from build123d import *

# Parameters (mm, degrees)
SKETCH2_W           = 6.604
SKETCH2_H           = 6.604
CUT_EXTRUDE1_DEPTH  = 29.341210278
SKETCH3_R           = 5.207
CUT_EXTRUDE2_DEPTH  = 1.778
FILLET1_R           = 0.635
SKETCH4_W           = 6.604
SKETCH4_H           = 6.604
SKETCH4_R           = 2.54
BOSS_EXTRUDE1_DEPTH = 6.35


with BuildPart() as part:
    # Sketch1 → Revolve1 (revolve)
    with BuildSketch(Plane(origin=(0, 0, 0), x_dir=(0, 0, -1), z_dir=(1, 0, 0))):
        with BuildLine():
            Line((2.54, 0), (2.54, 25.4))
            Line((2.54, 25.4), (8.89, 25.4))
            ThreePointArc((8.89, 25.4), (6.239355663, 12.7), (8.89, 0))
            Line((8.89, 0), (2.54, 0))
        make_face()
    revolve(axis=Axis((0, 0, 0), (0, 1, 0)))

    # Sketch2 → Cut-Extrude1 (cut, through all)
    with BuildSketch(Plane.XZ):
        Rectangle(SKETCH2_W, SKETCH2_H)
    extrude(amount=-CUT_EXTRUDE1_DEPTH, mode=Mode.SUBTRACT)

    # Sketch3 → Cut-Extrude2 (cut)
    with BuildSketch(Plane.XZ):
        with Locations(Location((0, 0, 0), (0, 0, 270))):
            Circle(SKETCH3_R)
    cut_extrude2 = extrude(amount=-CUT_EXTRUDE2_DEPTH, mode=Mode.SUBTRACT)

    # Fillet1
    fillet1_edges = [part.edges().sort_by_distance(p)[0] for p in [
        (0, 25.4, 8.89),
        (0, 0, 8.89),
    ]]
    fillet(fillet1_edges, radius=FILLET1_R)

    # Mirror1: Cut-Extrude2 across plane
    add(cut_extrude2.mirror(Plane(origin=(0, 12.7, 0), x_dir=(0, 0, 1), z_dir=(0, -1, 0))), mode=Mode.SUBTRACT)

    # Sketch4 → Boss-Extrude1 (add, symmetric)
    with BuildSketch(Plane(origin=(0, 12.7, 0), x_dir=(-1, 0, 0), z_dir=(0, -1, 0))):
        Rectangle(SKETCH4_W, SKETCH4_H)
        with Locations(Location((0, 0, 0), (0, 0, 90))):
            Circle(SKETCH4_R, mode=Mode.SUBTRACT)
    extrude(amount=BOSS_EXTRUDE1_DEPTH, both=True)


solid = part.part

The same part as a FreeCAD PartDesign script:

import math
import FreeCAD as App
import Part
import Sketcher

V = App.Vector
Q = App.Units.Quantity


def edges_at(feature, points):
    """Names of the edges that pass closest to the given points."""
    edges = feature.Shape.Edges
    near = lambda p: min(range(len(edges)), key=lambda i: edges[i].distToShape(Part.Vertex(*p))[0])
    return sorted({f"Edge{near(p) + 1}" for p in points})

doc = App.newDocument("Part")
body = doc.addObject("PartDesign::Body", "Body")

sketch1 = doc.addObject("Sketcher::SketchObject", "Sketch")
body.addObject(sketch1)
sketch1.AttachmentSupport = (doc.YZ_Plane, [""])
sketch1.MapMode = "FlatFace"
sketch1.addGeometry([
    Part.LineSegment(V(25, -3, 0), V(0, -3, 0)),
    Part.LineSegment(V(0, -3, 0), V(0, -9, 0)),
    Part.ArcOfCircle(Part.Circle(V(13, -38, 0), V(0, 0, 1), 32), math.radians(66), math.radians(114)),
    Part.LineSegment(V(25, -9, 0), V(25, -3, 0)),
], False)
sketch1.addConstraint([
    Sketcher.Constraint("Coincident", 0, 2, 1, 1),
    Sketcher.Constraint("Coincident", 1, 2, 2, 2),
    Sketcher.Constraint("Coincident", 2, 1, 3, 1),
    Sketcher.Constraint("Coincident", 3, 2, 0, 1),
    Sketcher.Constraint("Horizontal", 0),
    Sketcher.Constraint("Vertical", 1),
    Sketcher.Constraint("Vertical", 3),
    Sketcher.Constraint("PointOnObject", 0, 2, -2),
    Sketcher.Constraint("Horizontal", 1, 2, 2, 1),
    Sketcher.Constraint("DistanceX", 0, 2, 0, 1, Q("1 in")),
    Sketcher.Constraint("Radius", 2, Q("1.25 in")),
    Sketcher.Constraint("DistanceY", 1, 2, 1, 1, Q("0.25 in")),
    Sketcher.Constraint("DistanceY", 0, 2, -1, 1, Q("0.1 in")),
])
revolution = doc.addObject("PartDesign::Revolution", "Revolution")
body.addObject(revolution)
revolution.Profile = sketch1
revolution.ReferenceAxis = (sketch1, ["H_Axis"])
revolution.Angle = 360

sketch2 = doc.addObject("Sketcher::SketchObject", "Sketch001")
body.addObject(sketch2)
sketch2.AttachmentSupport = (doc.XZ_Plane, [""])
sketch2.MapMode = "FlatFace"
sketch2.addGeometry([
    Part.LineSegment(V(-3, 3, 0), V(-3, -3, 0)),
    Part.LineSegment(V(-3, -3, 0), V(3, -3, 0)),
    Part.LineSegment(V(3, -3, 0), V(3, 3, 0)),
    Part.LineSegment(V(3, 3, 0), V(-3, 3, 0)),
], False)
sketch2.addConstraint([
    Sketcher.Constraint("Coincident", 0, 2, 1, 1),
    Sketcher.Constraint("Coincident", 1, 2, 2, 1),
    Sketcher.Constraint("Coincident", 2, 2, 3, 1),
    Sketcher.Constraint("Coincident", 3, 2, 0, 1),
    Sketcher.Constraint("Vertical", 0),
    Sketcher.Constraint("Horizontal", 1),
    Sketcher.Constraint("Vertical", 2),
    Sketcher.Constraint("Horizontal", 3),
    Sketcher.Constraint("Symmetric", 0, 2, 2, 2, -1, 1),
    Sketcher.Constraint("Equal", 3, 0),
    Sketcher.Constraint("DistanceX", 1, 1, 1, 2, Q("0.26 in")),
])
pocket1 = doc.addObject("PartDesign::Pocket", "Pocket")
body.addObject(pocket1)
pocket1.Profile = sketch2
pocket1.Type = "ThroughAll"

sketch3 = doc.addObject("Sketcher::SketchObject", "Sketch002")
body.addObject(sketch3)
sketch3.AttachmentSupport = (doc.XZ_Plane, [""])
sketch3.MapMode = "FlatFace"
sketch3.addGeometry(Part.Circle(V(0, 0, 0), V(0, 0, 1), 5), False)
sketch3.addConstraint([
    Sketcher.Constraint("Coincident", 0, 3, -1, 1),
    Sketcher.Constraint("Diameter", 0, Q("0.41 in")),
])
pocket2 = doc.addObject("PartDesign::Pocket", "Pocket001")
body.addObject(pocket2)
pocket2.Profile = sketch3
pocket2.Length = Q("0.07 in")
doc.recompute()

fillet = doc.addObject("PartDesign::Fillet", "Fillet")
body.addObject(fillet)
fillet.Base = (pocket2, edges_at(pocket2, [(0, 25.4, 8.89), (0, 0, 8.89)]))
fillet.Radius = Q("0.025 in")
doc.recompute()

datumplane = doc.addObject("PartDesign::Plane", "DatumPlane")
body.addObject(datumplane)
datumplane.AttachmentSupport = (doc.XZ_Plane, [""])
datumplane.MapMode = "FlatFace"
datumplane.AttachmentOffset = App.Placement(V(0, 0, -0.5 * 25.4), App.Rotation())
mirrored = doc.addObject("PartDesign::Mirrored", "Mirrored")
body.addObject(mirrored)
mirrored.Originals = [pocket2]
mirrored.MirrorPlane = (datumplane, [""])
body.Tip = mirrored

sketch4 = doc.addObject("Sketcher::SketchObject", "Sketch003")
body.addObject(sketch4)
sketch4.AttachmentSupport = (doc.XZ_Plane, [""])
sketch4.MapMode = "FlatFace"
sketch4.AttachmentOffset = App.Placement(V(0, 0, -0.5 * 25.4), App.Rotation())
sketch4.addGeometry([
    Part.LineSegment(V(3.3, -3.3, 0), V(3.3, 3.3, 0)),
    Part.LineSegment(V(3.3, 3.3, 0), V(-3.3, 3.3, 0)),
    Part.LineSegment(V(-3.3, 3.3, 0), V(-3.3, -3.3, 0)),
    Part.LineSegment(V(-3.3, -3.3, 0), V(3.3, -3.3, 0)),
    Part.Circle(V(0, 0, 0), V(0, 0, 1), 2.5),
], False)
sketch4.addConstraint([
    Sketcher.Constraint("Coincident", 0, 2, 1, 1),
    Sketcher.Constraint("Coincident", 1, 2, 2, 1),
    Sketcher.Constraint("Coincident", 2, 2, 3, 1),
    Sketcher.Constraint("Coincident", 3, 2, 0, 1),
    Sketcher.Constraint("Vertical", 0),
    Sketcher.Constraint("Horizontal", 1),
    Sketcher.Constraint("Vertical", 2),
    Sketcher.Constraint("Horizontal", 3),
    Sketcher.Constraint("Coincident", 4, 3, -1, 1),
    Sketcher.Constraint("Symmetric", 0, 2, 2, 2, -1, 1),
    Sketcher.Constraint("Equal", 3, 0),
    Sketcher.Constraint("Diameter", 4, Q("0.2 in")),
    Sketcher.Constraint("DistanceX", 1, 2, 1, 1, Q("0.26 in")),
])
pad1 = doc.addObject("PartDesign::Pad", "Pad")
body.addObject(pad1)
pad1.Profile = sketch4
pad1.Length = Q("0.5 in")
pad1.Midplane = True

doc.recompute()
